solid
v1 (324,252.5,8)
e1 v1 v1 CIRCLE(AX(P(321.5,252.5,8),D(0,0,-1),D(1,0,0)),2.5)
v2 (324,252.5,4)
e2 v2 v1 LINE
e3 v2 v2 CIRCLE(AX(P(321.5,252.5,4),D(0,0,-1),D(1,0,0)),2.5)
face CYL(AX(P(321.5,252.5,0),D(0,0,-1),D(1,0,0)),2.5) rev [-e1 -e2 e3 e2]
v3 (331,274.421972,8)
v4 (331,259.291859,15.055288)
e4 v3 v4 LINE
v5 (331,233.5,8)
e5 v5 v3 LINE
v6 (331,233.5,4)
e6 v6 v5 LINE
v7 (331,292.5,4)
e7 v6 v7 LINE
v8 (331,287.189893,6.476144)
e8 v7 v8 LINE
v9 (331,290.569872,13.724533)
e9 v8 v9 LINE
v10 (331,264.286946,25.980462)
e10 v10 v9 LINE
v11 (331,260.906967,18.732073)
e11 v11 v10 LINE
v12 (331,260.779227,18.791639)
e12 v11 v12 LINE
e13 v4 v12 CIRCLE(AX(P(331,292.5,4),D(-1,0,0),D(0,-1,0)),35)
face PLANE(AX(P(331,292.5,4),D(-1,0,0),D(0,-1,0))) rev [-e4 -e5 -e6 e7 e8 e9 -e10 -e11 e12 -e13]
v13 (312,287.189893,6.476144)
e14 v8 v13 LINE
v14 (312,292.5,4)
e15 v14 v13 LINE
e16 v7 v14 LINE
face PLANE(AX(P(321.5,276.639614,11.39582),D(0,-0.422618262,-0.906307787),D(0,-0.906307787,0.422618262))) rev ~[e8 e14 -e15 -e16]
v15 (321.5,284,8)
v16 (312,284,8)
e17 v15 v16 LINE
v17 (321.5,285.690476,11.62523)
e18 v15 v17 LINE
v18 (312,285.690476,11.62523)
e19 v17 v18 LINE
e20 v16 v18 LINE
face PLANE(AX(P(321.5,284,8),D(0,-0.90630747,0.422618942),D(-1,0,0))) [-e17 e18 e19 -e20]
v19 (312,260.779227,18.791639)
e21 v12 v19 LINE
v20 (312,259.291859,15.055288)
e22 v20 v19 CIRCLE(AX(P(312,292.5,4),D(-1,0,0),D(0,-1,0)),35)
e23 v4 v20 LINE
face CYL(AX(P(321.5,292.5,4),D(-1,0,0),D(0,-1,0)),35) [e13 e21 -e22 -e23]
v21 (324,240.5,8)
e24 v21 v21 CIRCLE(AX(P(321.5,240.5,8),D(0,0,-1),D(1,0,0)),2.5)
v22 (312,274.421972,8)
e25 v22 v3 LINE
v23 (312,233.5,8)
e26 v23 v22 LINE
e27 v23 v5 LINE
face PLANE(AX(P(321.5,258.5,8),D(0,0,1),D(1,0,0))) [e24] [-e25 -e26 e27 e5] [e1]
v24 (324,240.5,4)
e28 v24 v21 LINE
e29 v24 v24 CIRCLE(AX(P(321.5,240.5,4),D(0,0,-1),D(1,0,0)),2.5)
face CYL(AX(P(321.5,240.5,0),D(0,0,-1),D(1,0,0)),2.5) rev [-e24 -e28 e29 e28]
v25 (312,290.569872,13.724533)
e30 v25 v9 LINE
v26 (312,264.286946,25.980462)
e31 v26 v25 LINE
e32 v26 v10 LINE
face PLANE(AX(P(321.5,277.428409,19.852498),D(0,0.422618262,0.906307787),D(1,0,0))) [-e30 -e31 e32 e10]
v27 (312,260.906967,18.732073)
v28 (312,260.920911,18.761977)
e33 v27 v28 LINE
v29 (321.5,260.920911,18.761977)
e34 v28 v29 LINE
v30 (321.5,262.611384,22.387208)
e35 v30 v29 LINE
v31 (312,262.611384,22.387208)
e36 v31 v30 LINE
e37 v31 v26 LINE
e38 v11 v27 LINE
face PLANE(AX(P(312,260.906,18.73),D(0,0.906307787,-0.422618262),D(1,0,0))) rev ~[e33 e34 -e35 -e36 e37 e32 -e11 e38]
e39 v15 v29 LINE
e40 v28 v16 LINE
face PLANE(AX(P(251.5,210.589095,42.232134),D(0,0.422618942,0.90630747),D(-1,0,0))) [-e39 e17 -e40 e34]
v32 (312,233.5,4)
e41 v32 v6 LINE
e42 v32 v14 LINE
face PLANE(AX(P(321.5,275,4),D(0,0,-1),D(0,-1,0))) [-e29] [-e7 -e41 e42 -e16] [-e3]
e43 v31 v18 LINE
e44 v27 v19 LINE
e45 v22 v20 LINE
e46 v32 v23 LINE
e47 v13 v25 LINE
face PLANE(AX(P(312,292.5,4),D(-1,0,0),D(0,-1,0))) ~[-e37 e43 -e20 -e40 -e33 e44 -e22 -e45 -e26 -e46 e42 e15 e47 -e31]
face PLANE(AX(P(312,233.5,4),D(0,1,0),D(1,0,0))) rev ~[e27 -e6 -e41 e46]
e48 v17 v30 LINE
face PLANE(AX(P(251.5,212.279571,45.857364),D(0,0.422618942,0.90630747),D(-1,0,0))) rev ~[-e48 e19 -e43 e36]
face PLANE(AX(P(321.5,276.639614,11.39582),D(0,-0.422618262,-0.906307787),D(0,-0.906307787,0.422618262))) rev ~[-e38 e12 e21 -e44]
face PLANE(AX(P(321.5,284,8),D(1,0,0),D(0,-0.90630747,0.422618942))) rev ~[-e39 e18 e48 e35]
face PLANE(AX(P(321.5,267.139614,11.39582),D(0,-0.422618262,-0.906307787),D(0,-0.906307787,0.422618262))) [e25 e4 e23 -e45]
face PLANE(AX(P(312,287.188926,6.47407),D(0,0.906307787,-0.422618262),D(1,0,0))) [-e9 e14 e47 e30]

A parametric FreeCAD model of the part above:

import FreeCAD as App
import Part
import Sketcher
from FreeCAD import Vector


def add_polygon(sketch, points):
    """Adds a closed chain of lines whose ends are joined by coincident constraints."""
    first, n = sketch.GeometryCount, len(points)
    for a, b in zip(points, points[1:] + points[:1]):
        sketch.addGeometry(Part.LineSegment(App.Vector(*a, 0), App.Vector(*b, 0)), False)
    for i in range(n):
        sketch.addConstraint(Sketcher.Constraint("Coincident", first + i, 2, first + (i + 1) % n, 1))

doc = App.newDocument("Part")
body = doc.addObject("PartDesign::Body", "Body")

# Sketch on XY plane
sketch1 = doc.addObject("Sketcher::SketchObject", "Sketch")
body.addObject(sketch1)
sketch1.AttachmentSupport = (doc.XY_Plane, [""])
sketch1.MapMode = "FlatFace"
sketch1.addGeometry(Part.Circle(Vector(177.5, 240.5, 0), Vector(0, 0, 1), 2.5), False)
sketch1.addConstraint(Sketcher.Constraint("Diameter", 0, 5.0))
sketch1.addConstraint(Sketcher.Constraint("DistanceX", -1, 1, 0, 3, 177.5))
sketch1.addConstraint(Sketcher.Constraint("DistanceY", -1, 1, 0, 3, 240.5))
pad1 = doc.addObject("PartDesign::Pad", "Pad")
body.addObject(pad1)
pad1.Profile = sketch1
pad1.Length = 10
body2 = doc.addObject("PartDesign::Body", "Body001")
body2.AllowCompound = True

# Sketch on XY plane
sketch2 = doc.addObject("Sketcher::SketchObject", "Sketch001")
body2.addObject(sketch2)
sketch2.AttachmentSupport = (doc.getObject("XY_Plane001"), [""])
sketch2.MapMode = "FlatFace"
sketch2.addGeometry(Part.Circle(Vector(177.5, 252.5, 0), Vector(0, 0, 1), 2.5), False)
sketch2.addConstraint(Sketcher.Constraint("Diameter", 0, 5.0))
sketch2.addConstraint(Sketcher.Constraint("DistanceX", -1, 1, 0, 3, 177.5))
sketch2.addConstraint(Sketcher.Constraint("DistanceY", -1, 1, 0, 3, 252.5))
pad2 = doc.addObject("PartDesign::Pad", "Pad001")
body2.addObject(pad2)
pad2.Profile = sketch2
pad2.Length = 10
doc.recompute()

boolean = doc.addObject("PartDesign::Boolean", "Boolean")
body2.addObject(boolean)
boolean.Type = "Fuse"
boolean.addObjects([body])
body3 = doc.addObject("PartDesign::Body", "Body002")

# Sketch on XY plane
sketch3 = doc.addObject("Sketcher::SketchObject", "Sketch002")
body3.addObject(sketch3)
sketch3.AttachmentSupport = (doc.getObject("XY_Plane002"), [""])
sketch3.MapMode = "FlatFace"
sketch3.AttachmentOffset = App.Placement(Vector(0, 0, 4), App.Rotation())
add_polygon(sketch3, [(168, 283), (187, 283), (187, 248), (168, 248)])  # lines 0-3
sketch3.addGeometry(Part.LineSegment(Vector(187, 283, 0), Vector(168, 283, 0)), True)  # axis
sketch3.addConstraint(Sketcher.Constraint("Horizontal", 0))
sketch3.addConstraint(Sketcher.Constraint("Vertical", 1))
sketch3.addConstraint(Sketcher.Constraint("Horizontal", 2))
sketch3.addConstraint(Sketcher.Constraint("Vertical", 3))
sketch3.addConstraint(Sketcher.Constraint("Horizontal", 4))
sketch3.addConstraint(Sketcher.Constraint("Coincident", 4, 1, 0, 2))
sketch3.addConstraint(Sketcher.Constraint("Vertical", 2, 2, 4, 2))
sketch3.addConstraint(Sketcher.Constraint("DistanceX", 0, 1, 0, 2, 19.0))
sketch3.addConstraint(Sketcher.Constraint("DistanceY", 1, 2, 1, 1, 35.0))
sketch3.addConstraint(Sketcher.Constraint("DistanceX", -1, 1, 0, 2, 187.0))
sketch3.addConstraint(Sketcher.Constraint("DistanceY", -1, 1, 0, 2, 283.0))
revolution = doc.addObject("PartDesign::Revolution", "Revolution")
body3.addObject(revolution)
revolution.Profile = sketch3
revolution.ReferenceAxis = (sketch3, ["Axis0"])
revolution.Angle = 25
body4 = doc.addObject("PartDesign::Body", "Body003")

# Sketch on XY plane
sketch4 = doc.addObject("Sketcher::SketchObject", "Sketch003")
body4.addObject(sketch4)
sketch4.AttachmentSupport = (doc.getObject("XY_Plane003"), [""])
sketch4.MapMode = "FlatFace"
sketch4.AttachmentOffset = App.Placement(Vector(0, 0, 4), App.Rotation())
add_polygon(sketch4, [(168, 292), (187, 292), (187, 258), (168, 258)])  # lines 0-3
sketch4.addGeometry(Part.LineSegment(Vector(187, 292, 0), Vector(168, 292, 0)), True)  # axis
sketch4.addConstraint(Sketcher.Constraint("Horizontal", 0))
sketch4.addConstraint(Sketcher.Constraint("Vertical", 1))
sketch4.addConstraint(Sketcher.Constraint("Horizontal", 2))
sketch4.addConstraint(Sketcher.Constraint("Vertical", 3))
sketch4.addConstraint(Sketcher.Constraint("Horizontal", 4))
sketch4.addConstraint(Sketcher.Constraint("Coincident", 4, 1, 0, 2))
sketch4.addConstraint(Sketcher.Constraint("Vertical", 2, 2, 4, 2))
sketch4.addConstraint(Sketcher.Constraint("DistanceX", 0, 1, 0, 2, 19.0))
sketch4.addConstraint(Sketcher.Constraint("DistanceY", 1, 2, 1, 1, 35.0))
sketch4.addConstraint(Sketcher.Constraint("DistanceX", -1, 1, 0, 2, 187.0))
sketch4.addConstraint(Sketcher.Constraint("DistanceY", -1, 1, 0, 2, 292.5))
revolution2 = doc.addObject("PartDesign::Revolution", "Revolution001")
body4.addObject(revolution2)
revolution2.Profile = sketch4
revolution2.ReferenceAxis = (sketch4, ["Axis0"])
revolution2.Angle = 25
doc.recompute()

boolean2 = doc.addObject("PartDesign::Boolean", "Boolean001")
body4.addObject(boolean2)
boolean2.Type = "Cut"
boolean2.addObjects([body3])
body5 = doc.addObject("PartDesign::Body", "Body004")

# Sketch on XY plane
sketch5 = doc.addObject("Sketcher::SketchObject", "Sketch004")
body5.addObject(sketch5)
sketch5.AttachmentSupport = (doc.getObject("XY_Plane004"), [""])
sketch5.MapMode = "FlatFace"
sketch5.AttachmentOffset = App.Placement(Vector(0, 0, 4), App.Rotation())
add_polygon(sketch5, [(168, 284), (168, 234), (187, 234), (187, 284)])  # lines 0-3
sketch5.addConstraint(Sketcher.Constraint("Vertical", 0))
sketch5.addConstraint(Sketcher.Constraint("Horizontal", 1))
sketch5.addConstraint(Sketcher.Constraint("Vertical", 2))
sketch5.addConstraint(Sketcher.Constraint("Horizontal", 3))
sketch5.addConstraint(Sketcher.Constraint("DistanceX", 1, 1, 1, 2, 19.0))
sketch5.addConstraint(Sketcher.Constraint("DistanceY", 0, 2, 0, 1, 50.0))
sketch5.addConstraint(Sketcher.Constraint("DistanceX", -1, 1, 0, 2, 168.0))
sketch5.addConstraint(Sketcher.Constraint("DistanceY", -1, 1, 0, 2, 233.5))
pad3 = doc.addObject("PartDesign::Pad", "Pad002")
body5.addObject(pad3)
pad3.Profile = sketch5
pad3.Length = 4
doc.recompute()

boolean3 = doc.addObject("PartDesign::Boolean", "Boolean002")
body5.addObject(boolean3)
boolean3.Type = "Fuse"
boolean3.addObjects([body4])
doc.recompute()

boolean4 = doc.addObject("PartDesign::Boolean", "Boolean003")
body5.addObject(boolean4)
boolean4.Type = "Cut"
boolean4.addObjects([body2])
body6 = doc.addObject("PartDesign::Body", "Body005")
doc.recompute()

body5.Placement = App.Placement(Vector(144, 0, 0), App.Rotation(Vector(0, 0, 1), 0))
boolean5 = doc.addObject("PartDesign::Boolean", "Boolean004")
body6.addObject(boolean5)
boolean5.Type = "Fuse"
boolean5.addObjects([body5])
body7 = doc.addObject("PartDesign::Body", "Body006")

# Sketch on XY plane
sketch6 = doc.addObject("Sketcher::SketchObject", "Sketch005")
body7.addObject(sketch6)
sketch6.AttachmentSupport = (doc.getObject("XY_Plane006"), [""])
sketch6.MapMode = "FlatFace"
add_polygon(sketch6, [(0, 162), (0, 0), (140, 0), (140, 162)])  # lines 0-3
sketch6.addConstraint(Sketcher.Constraint("Vertical", 0))
sketch6.addConstraint(Sketcher.Constraint("Horizontal", 1))
sketch6.addConstraint(Sketcher.Constraint("Vertical", 2))
sketch6.addConstraint(Sketcher.Constraint("Horizontal", 3))
sketch6.addConstraint(Sketcher.Constraint("Coincident", 0, 2, -1, 1))
sketch6.addConstraint(Sketcher.Constraint("DistanceX", 1, 1, 1, 2, 140.0))
sketch6.addConstraint(Sketcher.Constraint("DistanceY", 0, 2, 0, 1, 162.0))
pad4 = doc.addObject("PartDesign::Pad", "Pad003")
body7.addObject(pad4)
pad4.Profile = sketch6
pad4.Length = 4
body8 = doc.addObject("PartDesign::Body", "Body007")
doc.recompute()

body7.Placement = App.Placement(Vector(0, 0, 0), App.Rotation(Vector(1, 0, 0), 25.000043))
boolean6 = doc.addObject("PartDesign::Boolean", "Boolean005")
body8.addObject(boolean6)
boolean6.Type = "Fuse"
boolean6.addObjects([body7])
body9 = doc.addObject("PartDesign::Body", "Body008")
doc.recompute()

body8.Placement = App.Placement(Vector(321.5, 284, 8), App.Rotation(Vector(0, 0, 1), 180))
boolean7 = doc.addObject("PartDesign::Boolean", "Boolean006")
body9.addObject(boolean7)
boolean7.Type = "Fuse"
boolean7.addObjects([body8])
body10 = doc.addObject("PartDesign::Body", "Body009")

# Sketch on XY plane
sketch7 = doc.addObject("Sketcher::SketchObject", "Sketch006")
body10.addObject(sketch7)
sketch7.AttachmentSupport = (doc.getObject("XY_Plane009"), [""])
sketch7.MapMode = "FlatFace"
add_polygon(sketch7, [(0, 29), (0, 0), (19, 0), (19, 29)])  # lines 0-3
sketch7.addConstraint(Sketcher.Constraint("Vertical", 0))
sketch7.addConstraint(Sketcher.Constraint("Horizontal", 1))
sketch7.addConstraint(Sketcher.Constraint("Vertical", 2))
sketch7.addConstraint(Sketcher.Constraint("Horizontal", 3))
sketch7.addConstraint(Sketcher.Constraint("Coincident", 0, 2, -1, 1))
sketch7.addConstraint(Sketcher.Constraint("DistanceX", 1, 1, 1, 2, 19.0))
sketch7.addConstraint(Sketcher.Constraint("DistanceY", 0, 2, 0, 1, 29.0))
pad5 = doc.addObject("PartDesign::Pad", "Pad004")
body10.addObject(pad5)
pad5.Profile = sketch7
pad5.Length = 8
body11 = doc.addObject("PartDesign::Body", "Body010")
doc.recompute()

body10.Placement = App.Placement(Vector(312, 260.906, 18.73), App.Rotation(Vector(-1, 0, 0), 25))
boolean8 = doc.addObject("PartDesign::Boolean", "Boolean007")
body11.addObject(boolean8)
boolean8.Type = "Fuse"
boolean8.addObjects([body10])
doc.recompute()

boolean9 = doc.addObject("PartDesign::Boolean", "Boolean008")
body11.addObject(boolean9)
boolean9.Type = "Cut"
boolean9.addObjects([body9])
doc.recompute()

boolean10 = doc.addObject("PartDesign::Boolean", "Boolean009")
body11.addObject(boolean10)
boolean10.Type = "Fuse"
boolean10.addObjects([body6])

doc.recompute()
